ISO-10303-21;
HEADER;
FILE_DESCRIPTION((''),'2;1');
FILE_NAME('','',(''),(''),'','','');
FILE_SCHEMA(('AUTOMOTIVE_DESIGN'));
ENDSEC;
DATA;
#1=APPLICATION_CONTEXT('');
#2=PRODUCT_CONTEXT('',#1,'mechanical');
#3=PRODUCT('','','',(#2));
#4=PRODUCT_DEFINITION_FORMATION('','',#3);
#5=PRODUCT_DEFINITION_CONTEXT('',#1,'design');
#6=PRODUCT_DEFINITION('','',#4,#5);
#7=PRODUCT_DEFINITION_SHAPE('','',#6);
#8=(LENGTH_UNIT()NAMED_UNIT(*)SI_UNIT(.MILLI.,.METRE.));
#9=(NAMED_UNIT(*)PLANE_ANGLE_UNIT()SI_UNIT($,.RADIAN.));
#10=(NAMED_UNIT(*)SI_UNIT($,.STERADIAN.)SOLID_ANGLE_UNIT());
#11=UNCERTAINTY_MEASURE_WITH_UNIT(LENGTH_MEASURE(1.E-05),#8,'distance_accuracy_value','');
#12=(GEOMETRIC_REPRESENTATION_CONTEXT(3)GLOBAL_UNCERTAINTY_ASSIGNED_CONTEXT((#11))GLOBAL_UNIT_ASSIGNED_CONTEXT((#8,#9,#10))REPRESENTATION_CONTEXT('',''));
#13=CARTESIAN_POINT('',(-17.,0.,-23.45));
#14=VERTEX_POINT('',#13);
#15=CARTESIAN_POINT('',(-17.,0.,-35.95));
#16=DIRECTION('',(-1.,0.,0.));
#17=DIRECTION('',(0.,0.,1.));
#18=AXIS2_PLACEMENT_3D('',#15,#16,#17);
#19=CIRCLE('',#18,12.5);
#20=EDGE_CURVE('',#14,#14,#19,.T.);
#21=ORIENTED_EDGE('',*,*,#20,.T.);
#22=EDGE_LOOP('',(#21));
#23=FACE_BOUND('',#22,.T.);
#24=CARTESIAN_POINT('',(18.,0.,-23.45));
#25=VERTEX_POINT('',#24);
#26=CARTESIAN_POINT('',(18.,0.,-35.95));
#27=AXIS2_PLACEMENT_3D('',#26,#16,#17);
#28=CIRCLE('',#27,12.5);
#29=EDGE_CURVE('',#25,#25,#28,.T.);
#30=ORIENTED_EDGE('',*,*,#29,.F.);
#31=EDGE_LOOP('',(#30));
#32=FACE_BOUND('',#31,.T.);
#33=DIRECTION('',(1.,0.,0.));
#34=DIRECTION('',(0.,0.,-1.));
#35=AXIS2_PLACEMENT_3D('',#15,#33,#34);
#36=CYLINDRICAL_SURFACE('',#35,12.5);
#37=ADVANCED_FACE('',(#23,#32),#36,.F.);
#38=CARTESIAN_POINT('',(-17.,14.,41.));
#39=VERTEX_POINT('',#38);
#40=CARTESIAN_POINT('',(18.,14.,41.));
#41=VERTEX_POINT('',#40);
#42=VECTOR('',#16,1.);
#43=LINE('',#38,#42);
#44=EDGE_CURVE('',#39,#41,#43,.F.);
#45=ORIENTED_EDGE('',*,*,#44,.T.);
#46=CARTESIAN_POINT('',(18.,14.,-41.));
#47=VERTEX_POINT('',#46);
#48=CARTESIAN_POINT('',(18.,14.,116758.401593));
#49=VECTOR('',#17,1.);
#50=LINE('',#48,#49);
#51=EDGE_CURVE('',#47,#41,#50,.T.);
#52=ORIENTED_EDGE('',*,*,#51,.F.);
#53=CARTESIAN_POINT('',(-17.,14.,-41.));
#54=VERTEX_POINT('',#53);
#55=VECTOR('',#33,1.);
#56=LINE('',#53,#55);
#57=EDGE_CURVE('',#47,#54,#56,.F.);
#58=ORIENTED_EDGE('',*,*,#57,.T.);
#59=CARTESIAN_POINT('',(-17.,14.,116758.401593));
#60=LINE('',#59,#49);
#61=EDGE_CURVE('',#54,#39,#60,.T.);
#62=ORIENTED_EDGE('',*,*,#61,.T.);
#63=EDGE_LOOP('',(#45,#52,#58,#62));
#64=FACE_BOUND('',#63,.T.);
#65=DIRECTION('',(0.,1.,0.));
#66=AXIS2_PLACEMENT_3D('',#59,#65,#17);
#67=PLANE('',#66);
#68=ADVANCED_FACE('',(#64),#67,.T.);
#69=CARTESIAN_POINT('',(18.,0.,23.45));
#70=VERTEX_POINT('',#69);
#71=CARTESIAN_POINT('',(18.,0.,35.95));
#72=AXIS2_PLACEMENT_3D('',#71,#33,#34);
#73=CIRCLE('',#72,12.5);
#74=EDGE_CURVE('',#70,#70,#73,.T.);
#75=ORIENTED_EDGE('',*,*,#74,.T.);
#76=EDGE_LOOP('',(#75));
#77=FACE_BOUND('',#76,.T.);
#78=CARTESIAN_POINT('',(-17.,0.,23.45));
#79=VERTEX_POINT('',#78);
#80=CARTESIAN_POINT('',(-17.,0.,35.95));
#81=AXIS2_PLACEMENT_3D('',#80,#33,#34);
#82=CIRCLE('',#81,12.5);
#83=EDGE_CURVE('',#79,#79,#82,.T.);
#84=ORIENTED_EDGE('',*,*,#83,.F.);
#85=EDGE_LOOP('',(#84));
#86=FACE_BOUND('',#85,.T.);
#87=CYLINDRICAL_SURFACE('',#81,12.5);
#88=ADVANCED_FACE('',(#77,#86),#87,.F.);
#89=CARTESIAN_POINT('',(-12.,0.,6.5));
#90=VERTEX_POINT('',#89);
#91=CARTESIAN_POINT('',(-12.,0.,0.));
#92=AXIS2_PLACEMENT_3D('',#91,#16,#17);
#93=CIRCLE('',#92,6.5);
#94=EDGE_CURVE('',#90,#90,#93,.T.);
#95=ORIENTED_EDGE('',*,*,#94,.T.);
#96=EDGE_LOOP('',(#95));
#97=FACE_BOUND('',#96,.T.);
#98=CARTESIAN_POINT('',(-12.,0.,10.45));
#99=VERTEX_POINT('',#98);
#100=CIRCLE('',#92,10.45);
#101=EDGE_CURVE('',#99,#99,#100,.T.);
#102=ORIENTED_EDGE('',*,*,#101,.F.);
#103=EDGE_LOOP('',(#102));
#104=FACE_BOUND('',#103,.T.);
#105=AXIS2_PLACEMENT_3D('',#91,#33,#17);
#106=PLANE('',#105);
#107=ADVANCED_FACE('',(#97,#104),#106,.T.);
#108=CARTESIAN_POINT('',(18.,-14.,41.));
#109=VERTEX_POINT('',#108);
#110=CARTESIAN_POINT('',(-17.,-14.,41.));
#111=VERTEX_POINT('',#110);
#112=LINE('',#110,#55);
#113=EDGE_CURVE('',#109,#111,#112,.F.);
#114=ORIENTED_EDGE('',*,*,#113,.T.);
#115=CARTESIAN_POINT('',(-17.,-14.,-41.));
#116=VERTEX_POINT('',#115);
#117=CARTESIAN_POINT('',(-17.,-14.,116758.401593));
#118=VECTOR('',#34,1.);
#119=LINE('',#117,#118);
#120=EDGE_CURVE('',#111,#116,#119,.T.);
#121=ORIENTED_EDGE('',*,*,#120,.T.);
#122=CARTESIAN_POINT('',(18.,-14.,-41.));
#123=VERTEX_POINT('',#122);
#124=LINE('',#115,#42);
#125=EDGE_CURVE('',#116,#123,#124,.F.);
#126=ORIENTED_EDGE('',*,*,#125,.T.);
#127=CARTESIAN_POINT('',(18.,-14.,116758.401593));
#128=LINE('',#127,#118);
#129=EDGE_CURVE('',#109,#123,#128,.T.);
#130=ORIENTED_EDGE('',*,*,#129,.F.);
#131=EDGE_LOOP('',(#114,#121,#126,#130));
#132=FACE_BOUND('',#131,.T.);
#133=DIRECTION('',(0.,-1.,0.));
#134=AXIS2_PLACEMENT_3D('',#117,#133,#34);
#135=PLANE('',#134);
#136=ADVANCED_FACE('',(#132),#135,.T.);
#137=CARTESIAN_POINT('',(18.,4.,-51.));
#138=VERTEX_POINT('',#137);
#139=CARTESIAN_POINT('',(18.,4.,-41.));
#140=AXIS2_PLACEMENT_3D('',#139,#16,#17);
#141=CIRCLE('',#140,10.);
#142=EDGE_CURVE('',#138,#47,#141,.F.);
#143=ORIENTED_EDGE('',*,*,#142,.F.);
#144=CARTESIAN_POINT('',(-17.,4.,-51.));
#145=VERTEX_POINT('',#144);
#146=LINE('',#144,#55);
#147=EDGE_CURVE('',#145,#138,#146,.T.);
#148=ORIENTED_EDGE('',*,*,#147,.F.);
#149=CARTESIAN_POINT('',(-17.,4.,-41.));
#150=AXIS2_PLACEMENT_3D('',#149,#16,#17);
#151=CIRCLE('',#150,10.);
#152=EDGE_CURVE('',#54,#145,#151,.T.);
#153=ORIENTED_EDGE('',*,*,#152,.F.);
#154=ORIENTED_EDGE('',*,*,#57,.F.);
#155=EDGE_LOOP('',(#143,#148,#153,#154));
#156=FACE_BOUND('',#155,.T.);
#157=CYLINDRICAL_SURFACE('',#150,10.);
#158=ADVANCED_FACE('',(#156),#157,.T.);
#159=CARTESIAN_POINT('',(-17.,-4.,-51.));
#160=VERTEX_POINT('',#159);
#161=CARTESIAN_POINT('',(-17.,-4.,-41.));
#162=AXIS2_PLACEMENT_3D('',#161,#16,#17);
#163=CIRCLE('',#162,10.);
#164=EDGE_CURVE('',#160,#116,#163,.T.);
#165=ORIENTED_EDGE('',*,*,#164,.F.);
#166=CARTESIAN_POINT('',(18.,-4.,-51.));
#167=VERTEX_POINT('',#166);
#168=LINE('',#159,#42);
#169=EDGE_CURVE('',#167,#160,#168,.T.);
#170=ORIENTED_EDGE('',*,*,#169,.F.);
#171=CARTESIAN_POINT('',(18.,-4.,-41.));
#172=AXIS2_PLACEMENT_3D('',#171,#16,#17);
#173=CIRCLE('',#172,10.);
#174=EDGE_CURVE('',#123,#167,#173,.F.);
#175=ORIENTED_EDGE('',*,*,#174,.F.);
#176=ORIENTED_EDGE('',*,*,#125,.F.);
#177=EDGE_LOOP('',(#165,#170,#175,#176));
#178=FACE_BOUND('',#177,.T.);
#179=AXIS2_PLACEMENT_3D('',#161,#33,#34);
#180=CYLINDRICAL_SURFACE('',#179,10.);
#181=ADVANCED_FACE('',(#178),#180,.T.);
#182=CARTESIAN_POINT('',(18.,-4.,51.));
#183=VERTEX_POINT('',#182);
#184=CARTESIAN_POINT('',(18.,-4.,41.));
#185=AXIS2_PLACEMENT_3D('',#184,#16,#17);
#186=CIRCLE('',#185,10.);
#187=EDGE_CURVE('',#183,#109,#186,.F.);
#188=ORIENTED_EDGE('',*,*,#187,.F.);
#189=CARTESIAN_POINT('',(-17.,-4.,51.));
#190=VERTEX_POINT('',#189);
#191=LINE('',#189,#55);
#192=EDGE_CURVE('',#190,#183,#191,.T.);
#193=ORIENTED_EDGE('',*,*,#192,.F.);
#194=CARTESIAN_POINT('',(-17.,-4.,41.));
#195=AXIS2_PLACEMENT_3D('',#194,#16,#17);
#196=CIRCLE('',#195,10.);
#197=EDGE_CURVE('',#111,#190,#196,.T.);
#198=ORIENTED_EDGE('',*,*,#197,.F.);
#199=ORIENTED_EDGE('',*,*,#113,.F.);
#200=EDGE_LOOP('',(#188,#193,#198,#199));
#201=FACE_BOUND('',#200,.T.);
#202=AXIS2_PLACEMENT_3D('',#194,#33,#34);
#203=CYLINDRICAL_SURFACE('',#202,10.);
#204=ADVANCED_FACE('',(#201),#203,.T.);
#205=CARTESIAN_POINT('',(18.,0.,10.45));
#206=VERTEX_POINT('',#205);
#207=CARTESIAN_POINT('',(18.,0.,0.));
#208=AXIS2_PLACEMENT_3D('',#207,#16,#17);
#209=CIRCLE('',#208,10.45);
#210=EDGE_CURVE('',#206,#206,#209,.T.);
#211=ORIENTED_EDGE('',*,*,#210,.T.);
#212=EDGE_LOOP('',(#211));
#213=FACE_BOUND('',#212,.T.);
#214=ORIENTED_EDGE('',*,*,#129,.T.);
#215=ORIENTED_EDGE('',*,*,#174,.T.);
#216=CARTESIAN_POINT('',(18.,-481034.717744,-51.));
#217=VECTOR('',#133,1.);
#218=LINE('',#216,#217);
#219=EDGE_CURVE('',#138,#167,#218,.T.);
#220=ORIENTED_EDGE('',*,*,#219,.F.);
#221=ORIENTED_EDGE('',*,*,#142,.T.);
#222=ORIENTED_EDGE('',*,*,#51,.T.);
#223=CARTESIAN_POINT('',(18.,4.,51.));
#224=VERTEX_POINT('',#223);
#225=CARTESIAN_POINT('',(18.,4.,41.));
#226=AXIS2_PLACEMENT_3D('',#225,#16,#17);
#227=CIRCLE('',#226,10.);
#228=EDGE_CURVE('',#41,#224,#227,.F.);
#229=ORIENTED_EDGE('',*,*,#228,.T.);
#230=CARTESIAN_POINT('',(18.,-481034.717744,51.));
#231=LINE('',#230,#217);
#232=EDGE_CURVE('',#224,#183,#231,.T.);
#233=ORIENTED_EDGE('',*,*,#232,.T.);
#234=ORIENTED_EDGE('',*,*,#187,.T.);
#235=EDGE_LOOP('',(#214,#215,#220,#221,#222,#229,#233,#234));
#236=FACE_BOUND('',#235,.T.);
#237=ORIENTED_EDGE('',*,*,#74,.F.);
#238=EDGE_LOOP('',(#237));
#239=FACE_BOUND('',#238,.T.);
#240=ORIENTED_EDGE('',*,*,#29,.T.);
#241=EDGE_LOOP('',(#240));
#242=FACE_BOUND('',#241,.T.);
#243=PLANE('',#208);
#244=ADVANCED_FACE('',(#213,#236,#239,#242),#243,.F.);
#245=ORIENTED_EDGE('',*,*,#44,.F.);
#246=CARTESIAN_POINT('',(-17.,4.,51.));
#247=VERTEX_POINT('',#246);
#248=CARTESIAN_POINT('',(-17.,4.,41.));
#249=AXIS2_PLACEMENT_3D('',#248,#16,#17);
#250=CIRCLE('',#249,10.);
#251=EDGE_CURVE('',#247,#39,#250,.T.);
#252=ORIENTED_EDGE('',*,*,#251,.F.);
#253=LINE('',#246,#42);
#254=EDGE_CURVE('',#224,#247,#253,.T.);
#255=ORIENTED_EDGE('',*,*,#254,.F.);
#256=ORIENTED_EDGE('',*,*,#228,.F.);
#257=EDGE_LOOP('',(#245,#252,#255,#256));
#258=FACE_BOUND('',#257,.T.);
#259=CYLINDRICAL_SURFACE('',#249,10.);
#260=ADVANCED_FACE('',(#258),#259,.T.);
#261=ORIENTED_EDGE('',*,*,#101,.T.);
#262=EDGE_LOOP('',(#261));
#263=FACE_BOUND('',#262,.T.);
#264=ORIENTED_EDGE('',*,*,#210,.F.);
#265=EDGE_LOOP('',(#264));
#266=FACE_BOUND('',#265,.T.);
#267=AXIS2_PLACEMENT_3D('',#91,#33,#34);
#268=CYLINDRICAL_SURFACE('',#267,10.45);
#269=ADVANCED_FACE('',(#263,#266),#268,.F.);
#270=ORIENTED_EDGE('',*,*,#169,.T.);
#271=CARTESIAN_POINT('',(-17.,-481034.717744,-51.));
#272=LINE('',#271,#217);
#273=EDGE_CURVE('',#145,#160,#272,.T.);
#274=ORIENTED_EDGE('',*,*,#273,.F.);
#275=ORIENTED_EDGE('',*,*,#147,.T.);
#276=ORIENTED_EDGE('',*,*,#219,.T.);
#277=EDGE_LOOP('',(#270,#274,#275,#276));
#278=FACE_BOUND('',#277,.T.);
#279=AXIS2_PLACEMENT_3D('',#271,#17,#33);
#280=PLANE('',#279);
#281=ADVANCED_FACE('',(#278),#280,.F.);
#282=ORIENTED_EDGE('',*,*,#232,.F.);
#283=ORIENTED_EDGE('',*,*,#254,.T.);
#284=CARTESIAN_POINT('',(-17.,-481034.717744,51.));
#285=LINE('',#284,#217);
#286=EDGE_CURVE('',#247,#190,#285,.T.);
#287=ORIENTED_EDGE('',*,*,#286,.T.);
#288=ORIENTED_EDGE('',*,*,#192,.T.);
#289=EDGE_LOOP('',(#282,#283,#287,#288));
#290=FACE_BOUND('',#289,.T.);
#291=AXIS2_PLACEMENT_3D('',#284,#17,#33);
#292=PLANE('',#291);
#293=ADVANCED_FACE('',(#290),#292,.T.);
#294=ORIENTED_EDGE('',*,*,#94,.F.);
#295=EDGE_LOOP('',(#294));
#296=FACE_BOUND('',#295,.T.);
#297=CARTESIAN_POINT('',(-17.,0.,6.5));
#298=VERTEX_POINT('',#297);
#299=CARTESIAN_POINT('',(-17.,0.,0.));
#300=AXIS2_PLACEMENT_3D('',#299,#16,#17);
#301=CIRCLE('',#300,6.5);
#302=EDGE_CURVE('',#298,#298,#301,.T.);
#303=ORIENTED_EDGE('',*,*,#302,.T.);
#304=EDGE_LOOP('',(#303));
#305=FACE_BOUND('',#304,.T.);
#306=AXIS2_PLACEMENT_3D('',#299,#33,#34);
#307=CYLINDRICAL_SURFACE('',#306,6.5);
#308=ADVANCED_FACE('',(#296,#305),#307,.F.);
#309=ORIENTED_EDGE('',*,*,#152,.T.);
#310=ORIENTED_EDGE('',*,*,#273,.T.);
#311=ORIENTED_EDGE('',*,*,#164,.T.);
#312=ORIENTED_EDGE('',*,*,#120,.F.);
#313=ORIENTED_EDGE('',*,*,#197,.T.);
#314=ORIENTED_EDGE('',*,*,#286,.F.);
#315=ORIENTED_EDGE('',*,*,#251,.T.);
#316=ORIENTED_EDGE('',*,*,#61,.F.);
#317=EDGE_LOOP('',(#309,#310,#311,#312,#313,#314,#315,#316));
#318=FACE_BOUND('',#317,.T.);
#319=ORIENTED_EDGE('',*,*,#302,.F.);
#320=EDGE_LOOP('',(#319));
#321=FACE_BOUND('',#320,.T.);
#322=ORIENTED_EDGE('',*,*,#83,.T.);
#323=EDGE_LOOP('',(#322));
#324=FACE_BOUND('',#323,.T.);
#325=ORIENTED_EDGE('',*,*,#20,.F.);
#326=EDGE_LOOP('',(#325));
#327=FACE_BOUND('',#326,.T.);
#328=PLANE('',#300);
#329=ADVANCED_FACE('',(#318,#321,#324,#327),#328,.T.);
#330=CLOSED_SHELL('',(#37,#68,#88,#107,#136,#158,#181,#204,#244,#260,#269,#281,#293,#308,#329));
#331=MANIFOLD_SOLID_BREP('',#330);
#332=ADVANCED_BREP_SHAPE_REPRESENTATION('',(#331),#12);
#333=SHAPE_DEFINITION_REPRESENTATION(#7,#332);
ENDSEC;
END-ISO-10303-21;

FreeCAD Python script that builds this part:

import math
import FreeCAD as App
import Part
import Sketcher
Q = App.Units.Quantity


def edges_at(feature, points):
    """Names of the edges that pass closest to the given points."""
    edges = feature.Shape.Edges
    near = lambda p: min(range(len(edges)), key=lambda i: edges[i].distToShape(Part.Vertex(*p))[0])
    return sorted({f"Edge{near(p) + 1}" for p in points})

doc = App.newDocument("Part")
body = doc.addObject("PartDesign::Body", "Body")

# Sketch on YZ plane
sketch1 = body.newObject("Sketcher::SketchObject", "Sketch")
sketch1.AttachmentSupport = (doc.getObject("YZ_Plane"), [""])
sketch1.MapMode = "FlatFace"
sketch1.AttachmentOffset = App.Placement(App.Vector(0, 0, -17), App.Rotation())
sketch1.addGeometry([
    Part.LineSegment(App.Vector(-14, 51, 0), App.Vector(-14, 0, 0)),
    Part.ArcOfCircle(Part.Circle(App.Vector(0, 0, 0), App.Vector(0, 0, 1), 14), math.radians(180), math.radians(360)),
    Part.LineSegment(App.Vector(14, 0, 0), App.Vector(14, 51, 0)),
    Part.LineSegment(App.Vector(14, 51, 0), App.Vector(-14, 51, 0)),
], False)
sketch1.addConstraint([
    Sketcher.Constraint("Tangent", 0, 2, 1, 1),
    Sketcher.Constraint("Tangent", 1, 2, 2, 1),
    Sketcher.Constraint("Coincident", 2, 2, 3, 1),
    Sketcher.Constraint("Coincident", 3, 2, 0, 1),
    Sketcher.Constraint("Vertical", 0),
    Sketcher.Constraint("Vertical", 2),
    Sketcher.Constraint("Horizontal", 3),
    Sketcher.Constraint("Coincident", 1, 3, -1, 1),
    Sketcher.Constraint("Radius", 1, Q("14 mm")),
    Sketcher.Constraint("DistanceY", 0, 2, 0, 1, Q("51 mm")),
])
pad1 = body.newObject("PartDesign::Pad", "Pad")
pad1.Profile = sketch1
pad1.Length = 35

# Sketch on YZ plane
sketch2 = body.newObject("Sketcher::SketchObject", "Sketch001")
sketch2.AttachmentSupport = (doc.getObject("YZ_Plane"), [""])
sketch2.MapMode = "FlatFace"
sketch2.AttachmentOffset = App.Placement(App.Vector(0, 0, 18), App.Rotation())
sketch2.addGeometry(Part.Circle(App.Vector(0, 0, 0), App.Vector(0, 0, 1), 10.45), False)
sketch2.addConstraint([
    Sketcher.Constraint("Coincident", 0, 3, -1, 1),
    Sketcher.Constraint("Diameter", 0, Q("20.9 mm")),
])
pocket1 = body.newObject("PartDesign::Pocket", "Pocket")
pocket1.Profile = sketch2
pocket1.Length = 30

# Sketch on YZ plane
sketch3 = body.newObject("Sketcher::SketchObject", "Sketch002")
sketch3.AttachmentSupport = (doc.getObject("YZ_Plane"), [""])
sketch3.MapMode = "FlatFace"
sketch3.AttachmentOffset = App.Placement(App.Vector(0, 0, -12), App.Rotation())
sketch3.addGeometry(Part.Circle(App.Vector(0, 0, 0), App.Vector(0, 0, 1), 6.5), False)
sketch3.addConstraint([
    Sketcher.Constraint("Coincident", 0, 3, -1, 1),
    Sketcher.Constraint("Diameter", 0, Q("13 mm")),
])
pocket2 = body.newObject("PartDesign::Pocket", "Pocket001")
pocket2.Profile = sketch3
pocket2.Type = "ThroughAll"

# Sketch on YZ plane
sketch4 = body.newObject("Sketcher::SketchObject", "Sketch003")
sketch4.AttachmentSupport = (doc.getObject("YZ_Plane"), [""])
sketch4.MapMode = "FlatFace"
sketch4.AttachmentOffset = App.Placement(App.Vector(0, 0, 18), App.Rotation())
sketch4.addGeometry(Part.Circle(App.Vector(0, 35.95, 0), App.Vector(0, 0, 1), 12.5), False)
sketch4.addConstraint([
    Sketcher.Constraint("PointOnObject", 0, 3, -2),
    Sketcher.Constraint("Diameter", 0, Q("25 mm")),
    Sketcher.Constraint("DistanceY", -1, 1, 0, 3, Q("35.95 mm")),
])
pocket3 = body.newObject("PartDesign::Pocket", "Pocket002")
pocket3.Profile = sketch4
pocket3.Type = "ThroughAll"
doc.recompute()

fillet = body.newObject("PartDesign::Fillet", "Fillet")
fillet.Base = (pocket3, edges_at(pocket3, [(0.5, 14, 51)]))
fillet.Radius = 10
doc.recompute()

fillet2 = body.newObject("PartDesign::Fillet", "Fillet001")
fillet2.Base = (fillet, edges_at(fillet, [(0.5, -14, 51)]))
fillet2.Radius = 10
doc.recompute()

mirrored = body.newObject("PartDesign::Mirrored", "Mirrored")
mirrored.Originals = [pad1, pocket1, pocket2, pocket3]
mirrored.MirrorPlane = (doc.getObject("XY_Plane"), [""])
body.Tip = mirrored
doc.recompute()

fillet3 = body.newObject("PartDesign::Fillet", "Fillet002")
fillet3.Base = (mirrored, edges_at(mirrored, [(0.5, 14, -51)]))
fillet3.Radius = 10
doc.recompute()

fillet4 = body.newObject("PartDesign::Fillet", "Fillet003")
fillet4.Base = (fillet3, edges_at(fillet3, [(0.5, -14, -51)]))
fillet4.Radius = 10

doc.recompute()
